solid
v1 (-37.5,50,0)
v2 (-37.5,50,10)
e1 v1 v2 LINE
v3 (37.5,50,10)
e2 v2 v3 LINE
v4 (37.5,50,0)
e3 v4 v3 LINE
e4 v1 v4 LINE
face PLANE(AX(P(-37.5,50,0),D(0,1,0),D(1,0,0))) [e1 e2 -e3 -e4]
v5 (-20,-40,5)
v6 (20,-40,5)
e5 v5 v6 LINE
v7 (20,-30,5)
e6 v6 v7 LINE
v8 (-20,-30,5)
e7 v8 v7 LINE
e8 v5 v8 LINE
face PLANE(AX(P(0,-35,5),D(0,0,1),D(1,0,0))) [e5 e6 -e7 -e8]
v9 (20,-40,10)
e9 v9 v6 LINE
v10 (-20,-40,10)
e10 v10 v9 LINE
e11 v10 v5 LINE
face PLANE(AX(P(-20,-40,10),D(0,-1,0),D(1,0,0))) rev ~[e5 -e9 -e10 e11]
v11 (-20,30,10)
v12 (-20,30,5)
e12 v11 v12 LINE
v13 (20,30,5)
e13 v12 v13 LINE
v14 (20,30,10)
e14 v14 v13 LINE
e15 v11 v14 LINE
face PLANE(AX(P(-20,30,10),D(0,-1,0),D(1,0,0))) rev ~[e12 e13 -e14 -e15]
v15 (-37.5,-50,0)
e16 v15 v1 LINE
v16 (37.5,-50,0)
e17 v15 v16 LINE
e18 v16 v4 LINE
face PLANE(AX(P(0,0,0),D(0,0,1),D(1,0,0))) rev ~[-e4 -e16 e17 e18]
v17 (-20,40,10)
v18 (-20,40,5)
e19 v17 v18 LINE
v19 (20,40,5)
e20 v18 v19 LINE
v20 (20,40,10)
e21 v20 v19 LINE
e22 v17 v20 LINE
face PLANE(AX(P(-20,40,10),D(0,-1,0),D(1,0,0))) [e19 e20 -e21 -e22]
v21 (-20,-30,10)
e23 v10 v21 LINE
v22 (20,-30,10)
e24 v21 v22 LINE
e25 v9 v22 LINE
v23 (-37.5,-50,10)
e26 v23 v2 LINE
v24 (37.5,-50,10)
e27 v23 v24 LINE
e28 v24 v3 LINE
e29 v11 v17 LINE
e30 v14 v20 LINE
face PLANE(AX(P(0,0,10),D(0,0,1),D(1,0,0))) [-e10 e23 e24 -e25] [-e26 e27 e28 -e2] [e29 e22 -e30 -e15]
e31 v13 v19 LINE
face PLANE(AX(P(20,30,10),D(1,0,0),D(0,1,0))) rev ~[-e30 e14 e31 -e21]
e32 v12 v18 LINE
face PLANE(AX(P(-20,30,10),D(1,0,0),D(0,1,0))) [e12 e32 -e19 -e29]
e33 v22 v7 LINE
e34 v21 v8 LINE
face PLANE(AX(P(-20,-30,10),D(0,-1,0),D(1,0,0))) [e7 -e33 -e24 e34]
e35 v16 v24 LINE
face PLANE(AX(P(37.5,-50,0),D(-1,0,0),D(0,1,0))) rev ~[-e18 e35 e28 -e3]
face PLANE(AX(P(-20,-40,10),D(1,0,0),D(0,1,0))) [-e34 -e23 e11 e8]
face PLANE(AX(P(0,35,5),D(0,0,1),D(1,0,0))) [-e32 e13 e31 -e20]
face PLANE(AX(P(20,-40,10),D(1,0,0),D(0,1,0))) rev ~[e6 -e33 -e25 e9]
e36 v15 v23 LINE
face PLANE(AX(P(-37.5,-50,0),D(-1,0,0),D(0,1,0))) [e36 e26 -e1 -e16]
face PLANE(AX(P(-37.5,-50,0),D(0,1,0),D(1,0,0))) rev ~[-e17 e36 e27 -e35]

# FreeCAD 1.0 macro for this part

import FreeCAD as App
import Part
import Sketcher

V = App.Vector


def add_polygon(sketch, points):
    """Adds a closed chain of lines whose ends are joined by coincident constraints."""
    first, n = sketch.GeometryCount, len(points)
    for a, b in zip(points, points[1:] + points[:1]):
        sketch.addGeometry(Part.LineSegment(App.Vector(*a, 0), App.Vector(*b, 0)), False)
    for i in range(n):
        sketch.addConstraint(Sketcher.Constraint("Coincident", first + i, 2, first + (i + 1) % n, 1))

doc = App.newDocument("Part")
params = doc.addObject("Spreadsheet::Sheet", "Params")
for row, (alias, value) in enumerate([
    ("sketch1_width", "75 mm"),
    ("sketch1_height", "100 mm"),
    ("pad1_length", "10 mm"),
    ("sketch2_width", "40 mm"),
    ("sketch2_height", "10 mm"),
    ("pocket1_length", "5 mm"),
], start=1):
    params.set(f"A{row}", alias)
    params.set(f"B{row}", "=" + value)
    params.setAlias(f"B{row}", alias)

body = doc.addObject("PartDesign::Body", "Body")

# Sketch on XY plane
sketch1 = body.newObject("Sketcher::SketchObject", "Sketch")
sketch1.AttachmentSupport = (doc.getObject("XY_Plane"), [""])
sketch1.MapMode = "FlatFace"
add_polygon(sketch1, [(-38, 50), (-38, -50), (38, -50), (38, 50)])  # lines 0-3
sketch1.addConstraint(Sketcher.Constraint("Vertical", 0))
sketch1.addConstraint(Sketcher.Constraint("Horizontal", 1))
sketch1.addConstraint(Sketcher.Constraint("Vertical", 2))
sketch1.addConstraint(Sketcher.Constraint("Horizontal", 3))
sketch1.addConstraint(Sketcher.Constraint("Symmetric", 0, 2, 2, 2, -1, 1))
sketch1.addConstraint(Sketcher.Constraint("DistanceX", 1, 1, 1, 2, 75.0))
sketch1.addConstraint(Sketcher.Constraint("DistanceY", 0, 2, 0, 1, 100.0))
sketch1.setExpression("Constraints[9]", "Params.sketch1_width")
sketch1.setExpression("Constraints[10]", "Params.sketch1_height")
pad1 = body.newObject("PartDesign::Pad", "Pad")
pad1.Profile = sketch1
pad1.setExpression("Length", "Params.pad1_length")

# Sketch on XY plane
sketch2 = body.newObject("Sketcher::SketchObject", "Sketch001")
sketch2.AttachmentSupport = (doc.getObject("XY_Plane"), [""])
sketch2.MapMode = "FlatFace"
sketch2.AttachmentOffset = App.Placement(V(0, 0, 10), App.Rotation())
add_polygon(sketch2, [(-20, 40), (-20, 30), (20, 30), (20, 40)])  # lines 0-3
add_polygon(sketch2, [(-20, -30), (-20, -40), (20, -40), (20, -30)])  # lines 4-7
sketch2.addConstraint(Sketcher.Constraint("Vertical", 0))
sketch2.addConstraint(Sketcher.Constraint("Horizontal", 1))
sketch2.addConstraint(Sketcher.Constraint("Vertical", 2))
sketch2.addConstraint(Sketcher.Constraint("Horizontal", 3))
sketch2.addConstraint(Sketcher.Constraint("Vertical", 4))
sketch2.addConstraint(Sketcher.Constraint("Horizontal", 5))
sketch2.addConstraint(Sketcher.Constraint("Vertical", 6))
sketch2.addConstraint(Sketcher.Constraint("Horizontal", 7))
sketch2.addConstraint(Sketcher.Constraint("Symmetric", 2, 2, 4, 2, -1, 1))
sketch2.addConstraint(Sketcher.Constraint("Symmetric", 0, 2, 6, 2, -1, 1))
sketch2.addConstraint(Sketcher.Constraint("Vertical", 3, 2, 4, 2))
sketch2.addConstraint(Sketcher.Constraint("DistanceX", 1, 1, 1, 2, 40.0))
sketch2.addConstraint(Sketcher.Constraint("DistanceY", 0, 2, 0, 1, 10.0))
sketch2.addConstraint(Sketcher.Constraint("DistanceY", -1, 1, 0, 2, 30.0))
sketch2.setExpression("Constraints[19]", "Params.sketch2_width")
sketch2.setExpression("Constraints[20]", "Params.sketch2_height")
pocket1 = body.newObject("PartDesign::Pocket", "Pocket")
pocket1.Profile = sketch2
pocket1.setExpression("Length", "Params.pocket1_length")

doc.recompute()
